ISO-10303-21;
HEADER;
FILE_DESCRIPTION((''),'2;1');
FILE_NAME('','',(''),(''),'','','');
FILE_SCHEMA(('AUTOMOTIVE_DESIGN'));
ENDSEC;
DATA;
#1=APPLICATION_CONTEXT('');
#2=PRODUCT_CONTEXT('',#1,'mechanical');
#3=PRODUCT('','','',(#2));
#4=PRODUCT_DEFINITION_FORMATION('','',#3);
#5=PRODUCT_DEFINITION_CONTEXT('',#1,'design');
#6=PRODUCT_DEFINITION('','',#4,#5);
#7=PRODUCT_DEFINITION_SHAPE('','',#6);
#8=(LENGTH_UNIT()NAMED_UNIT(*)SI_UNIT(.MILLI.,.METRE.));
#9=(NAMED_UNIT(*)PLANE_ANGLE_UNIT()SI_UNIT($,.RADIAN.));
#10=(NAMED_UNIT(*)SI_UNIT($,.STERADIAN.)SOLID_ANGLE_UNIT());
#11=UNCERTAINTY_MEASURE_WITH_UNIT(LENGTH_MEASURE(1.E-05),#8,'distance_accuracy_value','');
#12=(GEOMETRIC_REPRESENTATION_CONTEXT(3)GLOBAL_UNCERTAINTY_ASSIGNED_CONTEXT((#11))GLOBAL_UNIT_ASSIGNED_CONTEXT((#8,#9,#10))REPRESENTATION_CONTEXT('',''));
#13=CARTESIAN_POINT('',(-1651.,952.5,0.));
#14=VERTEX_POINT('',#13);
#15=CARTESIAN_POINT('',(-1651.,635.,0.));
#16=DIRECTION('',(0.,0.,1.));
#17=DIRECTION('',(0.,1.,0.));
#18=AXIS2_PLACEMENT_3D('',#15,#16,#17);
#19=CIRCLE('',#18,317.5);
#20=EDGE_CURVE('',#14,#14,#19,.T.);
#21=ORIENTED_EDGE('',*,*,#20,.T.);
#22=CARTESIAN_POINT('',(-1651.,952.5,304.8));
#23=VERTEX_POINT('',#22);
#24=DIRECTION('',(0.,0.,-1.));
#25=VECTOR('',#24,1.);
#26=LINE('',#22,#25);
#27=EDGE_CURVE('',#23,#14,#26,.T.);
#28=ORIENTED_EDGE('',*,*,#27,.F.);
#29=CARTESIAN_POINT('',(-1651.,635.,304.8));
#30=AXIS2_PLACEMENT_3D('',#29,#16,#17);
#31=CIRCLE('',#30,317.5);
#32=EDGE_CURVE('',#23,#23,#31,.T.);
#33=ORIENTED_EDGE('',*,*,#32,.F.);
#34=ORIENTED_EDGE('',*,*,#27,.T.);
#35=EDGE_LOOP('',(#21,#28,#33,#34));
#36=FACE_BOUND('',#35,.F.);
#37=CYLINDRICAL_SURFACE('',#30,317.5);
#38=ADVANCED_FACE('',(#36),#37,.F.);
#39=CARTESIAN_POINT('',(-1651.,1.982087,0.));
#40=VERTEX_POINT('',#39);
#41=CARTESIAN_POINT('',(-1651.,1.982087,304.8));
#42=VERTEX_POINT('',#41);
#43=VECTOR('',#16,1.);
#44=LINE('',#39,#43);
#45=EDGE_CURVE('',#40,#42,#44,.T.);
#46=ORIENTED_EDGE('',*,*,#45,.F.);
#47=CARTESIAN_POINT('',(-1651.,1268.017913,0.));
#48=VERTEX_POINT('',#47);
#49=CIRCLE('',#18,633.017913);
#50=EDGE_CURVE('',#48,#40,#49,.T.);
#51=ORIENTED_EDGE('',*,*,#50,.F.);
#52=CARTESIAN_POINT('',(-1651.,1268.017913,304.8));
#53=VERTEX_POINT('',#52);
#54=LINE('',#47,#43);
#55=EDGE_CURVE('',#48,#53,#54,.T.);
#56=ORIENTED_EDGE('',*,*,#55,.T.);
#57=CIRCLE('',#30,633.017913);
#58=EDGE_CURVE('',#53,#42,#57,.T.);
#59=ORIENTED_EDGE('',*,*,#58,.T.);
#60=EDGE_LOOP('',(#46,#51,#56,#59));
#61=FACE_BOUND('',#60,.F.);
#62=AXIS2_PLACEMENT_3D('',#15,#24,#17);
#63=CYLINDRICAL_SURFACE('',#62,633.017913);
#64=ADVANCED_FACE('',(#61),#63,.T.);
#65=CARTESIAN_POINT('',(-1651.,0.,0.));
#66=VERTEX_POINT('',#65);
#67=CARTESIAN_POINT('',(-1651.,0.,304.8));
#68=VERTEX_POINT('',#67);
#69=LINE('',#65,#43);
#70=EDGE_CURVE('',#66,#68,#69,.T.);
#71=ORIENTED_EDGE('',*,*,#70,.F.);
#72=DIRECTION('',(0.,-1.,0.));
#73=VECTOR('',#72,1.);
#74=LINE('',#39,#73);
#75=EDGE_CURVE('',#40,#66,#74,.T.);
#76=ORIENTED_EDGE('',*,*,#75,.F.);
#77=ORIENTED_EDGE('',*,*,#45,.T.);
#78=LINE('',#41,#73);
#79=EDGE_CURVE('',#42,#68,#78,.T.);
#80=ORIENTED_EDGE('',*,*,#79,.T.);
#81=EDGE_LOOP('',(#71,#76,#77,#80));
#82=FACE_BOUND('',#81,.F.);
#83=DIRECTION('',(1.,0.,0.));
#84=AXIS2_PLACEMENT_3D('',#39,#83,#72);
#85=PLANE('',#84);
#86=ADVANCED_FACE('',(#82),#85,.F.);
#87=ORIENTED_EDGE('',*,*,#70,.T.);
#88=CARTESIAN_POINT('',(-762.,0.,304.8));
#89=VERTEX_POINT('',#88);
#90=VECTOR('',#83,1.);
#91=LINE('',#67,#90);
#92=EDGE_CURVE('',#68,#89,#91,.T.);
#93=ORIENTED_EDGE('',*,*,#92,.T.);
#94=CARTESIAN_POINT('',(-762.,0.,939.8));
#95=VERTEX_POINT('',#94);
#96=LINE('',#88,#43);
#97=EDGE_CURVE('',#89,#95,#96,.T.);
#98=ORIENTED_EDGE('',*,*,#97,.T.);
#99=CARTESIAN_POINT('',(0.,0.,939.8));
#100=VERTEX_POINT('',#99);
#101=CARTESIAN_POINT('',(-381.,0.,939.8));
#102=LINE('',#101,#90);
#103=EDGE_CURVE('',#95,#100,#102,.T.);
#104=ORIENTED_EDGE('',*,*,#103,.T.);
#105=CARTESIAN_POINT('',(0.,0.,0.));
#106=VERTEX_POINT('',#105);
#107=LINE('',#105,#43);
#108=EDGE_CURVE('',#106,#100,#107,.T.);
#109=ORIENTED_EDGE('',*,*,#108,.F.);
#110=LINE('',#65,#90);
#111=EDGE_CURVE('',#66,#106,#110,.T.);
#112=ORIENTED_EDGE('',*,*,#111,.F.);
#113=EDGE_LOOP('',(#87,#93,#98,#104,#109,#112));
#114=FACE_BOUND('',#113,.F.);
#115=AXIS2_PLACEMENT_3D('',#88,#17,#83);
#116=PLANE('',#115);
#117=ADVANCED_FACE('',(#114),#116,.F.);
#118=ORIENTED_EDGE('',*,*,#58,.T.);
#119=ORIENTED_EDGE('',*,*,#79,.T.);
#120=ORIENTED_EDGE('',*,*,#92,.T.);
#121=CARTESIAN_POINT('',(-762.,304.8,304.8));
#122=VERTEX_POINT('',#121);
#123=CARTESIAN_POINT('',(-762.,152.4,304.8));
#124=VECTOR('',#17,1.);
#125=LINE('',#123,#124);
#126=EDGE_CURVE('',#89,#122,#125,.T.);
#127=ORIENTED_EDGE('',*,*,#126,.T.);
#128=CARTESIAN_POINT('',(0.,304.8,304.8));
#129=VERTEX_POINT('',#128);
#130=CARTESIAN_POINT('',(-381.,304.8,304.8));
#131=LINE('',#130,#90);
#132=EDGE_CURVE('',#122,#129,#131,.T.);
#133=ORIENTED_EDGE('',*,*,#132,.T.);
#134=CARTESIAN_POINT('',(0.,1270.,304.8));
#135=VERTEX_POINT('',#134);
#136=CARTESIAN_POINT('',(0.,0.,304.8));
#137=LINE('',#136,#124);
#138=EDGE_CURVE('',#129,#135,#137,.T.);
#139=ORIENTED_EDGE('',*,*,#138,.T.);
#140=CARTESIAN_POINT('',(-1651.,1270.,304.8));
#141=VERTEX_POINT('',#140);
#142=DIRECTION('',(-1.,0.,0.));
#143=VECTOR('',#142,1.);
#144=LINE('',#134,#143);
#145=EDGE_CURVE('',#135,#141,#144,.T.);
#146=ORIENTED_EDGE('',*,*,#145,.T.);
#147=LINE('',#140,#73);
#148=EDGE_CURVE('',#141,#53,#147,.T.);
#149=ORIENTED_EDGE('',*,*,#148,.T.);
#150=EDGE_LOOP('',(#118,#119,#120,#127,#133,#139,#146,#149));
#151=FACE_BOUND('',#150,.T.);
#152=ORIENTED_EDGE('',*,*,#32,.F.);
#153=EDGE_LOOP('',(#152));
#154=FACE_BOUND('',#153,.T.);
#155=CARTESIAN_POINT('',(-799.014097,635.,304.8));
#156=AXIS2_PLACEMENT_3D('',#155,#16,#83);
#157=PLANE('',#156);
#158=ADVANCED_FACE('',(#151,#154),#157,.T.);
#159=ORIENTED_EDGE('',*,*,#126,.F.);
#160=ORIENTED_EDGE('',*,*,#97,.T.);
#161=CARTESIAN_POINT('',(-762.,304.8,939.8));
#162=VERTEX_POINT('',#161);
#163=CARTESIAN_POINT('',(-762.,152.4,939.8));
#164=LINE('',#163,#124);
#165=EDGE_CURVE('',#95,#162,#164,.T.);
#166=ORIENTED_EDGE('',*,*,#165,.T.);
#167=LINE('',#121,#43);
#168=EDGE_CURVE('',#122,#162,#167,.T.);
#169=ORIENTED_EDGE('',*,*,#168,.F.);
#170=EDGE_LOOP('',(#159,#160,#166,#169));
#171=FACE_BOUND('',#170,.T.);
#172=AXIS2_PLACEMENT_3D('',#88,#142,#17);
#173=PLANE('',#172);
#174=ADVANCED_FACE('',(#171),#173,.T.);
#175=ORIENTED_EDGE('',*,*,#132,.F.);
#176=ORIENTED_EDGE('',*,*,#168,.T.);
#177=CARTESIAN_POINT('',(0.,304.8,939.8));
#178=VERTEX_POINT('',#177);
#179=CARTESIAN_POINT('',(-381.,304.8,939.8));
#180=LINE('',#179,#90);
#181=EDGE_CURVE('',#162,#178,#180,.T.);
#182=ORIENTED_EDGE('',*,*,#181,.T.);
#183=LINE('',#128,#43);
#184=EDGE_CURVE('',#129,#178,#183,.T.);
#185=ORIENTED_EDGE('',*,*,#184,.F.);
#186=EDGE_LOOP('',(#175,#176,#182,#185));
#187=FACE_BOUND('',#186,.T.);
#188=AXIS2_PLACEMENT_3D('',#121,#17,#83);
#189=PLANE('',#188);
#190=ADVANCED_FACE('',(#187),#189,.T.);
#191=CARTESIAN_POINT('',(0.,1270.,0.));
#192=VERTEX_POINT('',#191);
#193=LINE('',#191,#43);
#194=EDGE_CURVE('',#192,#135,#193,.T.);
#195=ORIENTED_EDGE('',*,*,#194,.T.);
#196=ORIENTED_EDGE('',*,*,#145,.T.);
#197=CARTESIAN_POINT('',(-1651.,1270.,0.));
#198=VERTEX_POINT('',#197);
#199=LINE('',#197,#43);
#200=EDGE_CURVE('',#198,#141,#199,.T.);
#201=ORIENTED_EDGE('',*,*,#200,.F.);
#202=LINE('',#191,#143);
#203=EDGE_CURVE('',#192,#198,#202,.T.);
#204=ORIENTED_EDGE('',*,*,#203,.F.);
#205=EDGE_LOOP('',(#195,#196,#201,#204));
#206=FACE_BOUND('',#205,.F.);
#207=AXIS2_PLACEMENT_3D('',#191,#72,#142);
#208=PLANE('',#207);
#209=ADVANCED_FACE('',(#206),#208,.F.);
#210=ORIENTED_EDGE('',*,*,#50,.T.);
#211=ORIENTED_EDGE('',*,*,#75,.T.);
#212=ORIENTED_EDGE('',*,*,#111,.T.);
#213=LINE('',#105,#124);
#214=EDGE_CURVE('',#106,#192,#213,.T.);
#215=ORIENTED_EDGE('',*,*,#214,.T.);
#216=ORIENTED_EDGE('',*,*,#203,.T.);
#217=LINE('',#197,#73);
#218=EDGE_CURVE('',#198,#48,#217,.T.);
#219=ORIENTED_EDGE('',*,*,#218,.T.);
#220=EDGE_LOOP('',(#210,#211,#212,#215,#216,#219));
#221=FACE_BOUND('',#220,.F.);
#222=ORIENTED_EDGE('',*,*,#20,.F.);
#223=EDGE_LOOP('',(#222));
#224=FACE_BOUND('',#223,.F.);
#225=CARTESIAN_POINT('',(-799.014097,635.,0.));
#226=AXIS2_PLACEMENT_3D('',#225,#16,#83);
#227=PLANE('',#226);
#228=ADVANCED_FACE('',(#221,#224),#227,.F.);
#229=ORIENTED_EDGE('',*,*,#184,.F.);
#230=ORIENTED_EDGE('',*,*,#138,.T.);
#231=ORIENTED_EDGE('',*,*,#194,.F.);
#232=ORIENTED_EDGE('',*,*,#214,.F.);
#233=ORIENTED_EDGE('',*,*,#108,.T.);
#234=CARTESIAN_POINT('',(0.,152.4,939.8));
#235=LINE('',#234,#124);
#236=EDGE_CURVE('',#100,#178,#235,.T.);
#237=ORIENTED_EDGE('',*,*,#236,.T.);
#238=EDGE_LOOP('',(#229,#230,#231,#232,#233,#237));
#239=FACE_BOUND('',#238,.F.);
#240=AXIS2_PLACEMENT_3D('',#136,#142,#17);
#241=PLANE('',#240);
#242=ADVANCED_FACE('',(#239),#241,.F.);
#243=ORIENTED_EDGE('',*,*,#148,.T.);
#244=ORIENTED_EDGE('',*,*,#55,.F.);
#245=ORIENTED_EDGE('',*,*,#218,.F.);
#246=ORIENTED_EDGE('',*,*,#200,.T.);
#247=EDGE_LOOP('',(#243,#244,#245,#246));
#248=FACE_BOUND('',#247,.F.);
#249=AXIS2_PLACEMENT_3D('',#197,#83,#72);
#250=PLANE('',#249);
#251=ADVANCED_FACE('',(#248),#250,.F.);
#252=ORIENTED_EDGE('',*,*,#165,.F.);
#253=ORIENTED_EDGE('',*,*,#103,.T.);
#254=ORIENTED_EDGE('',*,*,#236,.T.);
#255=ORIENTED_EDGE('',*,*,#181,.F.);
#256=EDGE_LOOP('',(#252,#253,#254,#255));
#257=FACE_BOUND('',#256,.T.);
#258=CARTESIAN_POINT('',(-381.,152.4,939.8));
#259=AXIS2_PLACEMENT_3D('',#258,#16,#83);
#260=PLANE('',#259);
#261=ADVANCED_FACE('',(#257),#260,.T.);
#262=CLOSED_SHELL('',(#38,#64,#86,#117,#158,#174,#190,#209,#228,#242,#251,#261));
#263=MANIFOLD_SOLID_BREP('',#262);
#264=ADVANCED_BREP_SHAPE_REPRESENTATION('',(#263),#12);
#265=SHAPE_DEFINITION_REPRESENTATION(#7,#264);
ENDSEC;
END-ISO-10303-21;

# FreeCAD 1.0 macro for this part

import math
import FreeCAD as App
import Part
import Sketcher
from FreeCAD import Vector
Q = App.Units.Quantity

doc = App.newDocument("Part")
params = doc.addObject("Spreadsheet::Sheet", "Params")
for row, (alias, value) in enumerate([
    ("sketch1_width", "65 in"),
    ("sketch1_height", "50 in"),
    ("pad1_length", "12 in"),
    ("sketch2_diameter", "25 in"),
    ("pocket1_length", "100 in"),
    ("sketch3_width", "30 in"),
    ("sketch3_height", "12 in"),
    ("pad2_length", "25 in"),
], start=1):
    params.set(f"A{row}", alias)
    params.set(f"B{row}", "=" + value)
    params.setAlias(f"B{row}", alias)

body = doc.addObject("PartDesign::Body", "Body")

sketch1 = body.newObject("Sketcher::SketchObject", "Sketch")
sketch1.AttachmentSupport = (doc.getObject("XY_Plane"), [""])
sketch1.MapMode = "FlatFace"
sketch1.addGeometry([
    Part.LineSegment(Vector(-1651, 0, 0), Vector(0, 0, 0)),
    Part.LineSegment(Vector(0, 0, 0), Vector(0, 1270, 0)),
    Part.LineSegment(Vector(0, 1270, 0), Vector(-1651, 1270, 0)),
    Part.LineSegment(Vector(-1651, 1270, 0), Vector(-1651, 1268, 0)),
    Part.ArcOfCircle(Part.Circle(Vector(-1651, 635, 0), Vector(0, 0, 1), 633), math.radians(90), math.radians(270)),
    Part.LineSegment(Vector(-1651, 2, 0), Vector(-1651, 0, 0)),
], False)
sketch1.addConstraint([
    Sketcher.Constraint("Coincident", 0, 2, 1, 1),
    Sketcher.Constraint("Coincident", 1, 2, 2, 1),
    Sketcher.Constraint("Coincident", 2, 2, 3, 1),
    Sketcher.Constraint("Coincident", 3, 2, 4, 1),
    Sketcher.Constraint("Coincident", 4, 2, 5, 1),
    Sketcher.Constraint("Coincident", 5, 2, 0, 1),
    Sketcher.Constraint("Horizontal", 0),
    Sketcher.Constraint("Vertical", 1),
    Sketcher.Constraint("Horizontal", 2),
    Sketcher.Constraint("Vertical", 3),
    Sketcher.Constraint("Vertical", 5),
    Sketcher.Constraint("Coincident", 0, 2, -1, 1),
    Sketcher.Constraint("Vertical", 4, 3, 2, 2),
    Sketcher.Constraint("Equal", 0, 2),
    Sketcher.Constraint("Equal", 3, 5),
    Sketcher.Constraint("DistanceX", 0, 1, 0, 2, Q("65 in")),
    Sketcher.Constraint("DistanceY", 1, 1, 1, 2, Q("50 in")),
    Sketcher.Constraint("Radius", 4, Q("633.017913 mm")),
])
sketch1.setExpression("Constraints[15]", "Params.sketch1_width")
sketch1.setExpression("Constraints[16]", "Params.sketch1_height")
pad1 = body.newObject("PartDesign::Pad", "Pad")
pad1.Profile = sketch1
pad1.setExpression("Length", "Params.pad1_length")

sketch2 = body.newObject("Sketcher::SketchObject", "Sketch001")
sketch2.AttachmentSupport = (doc.getObject("XY_Plane"), [""])
sketch2.MapMode = "FlatFace"
sketch2.AttachmentOffset = App.Placement(Vector(0, 0, 12 * 25.4), App.Rotation())
sketch2.addGeometry(Part.Circle(Vector(-1651, 635, 0), Vector(0, 0, 1), 318), False)
sketch2.addConstraint([
    Sketcher.Constraint("Diameter", 0, Q("25 in")),
    Sketcher.Constraint("DistanceX", 0, 3, -1, 1, Q("65 in")),
    Sketcher.Constraint("DistanceY", -1, 1, 0, 3, Q("25 in")),
])
sketch2.setExpression("Constraints[0]", "Params.sketch2_diameter")
pocket1 = body.newObject("PartDesign::Pocket", "Pocket")
pocket1.Profile = sketch2
pocket1.setExpression("Length", "Params.pocket1_length")

sketch3 = body.newObject("Sketcher::SketchObject", "Sketch002")
sketch3.AttachmentSupport = (doc.getObject("XY_Plane"), [""])
sketch3.MapMode = "FlatFace"
sketch3.AttachmentOffset = App.Placement(Vector(0, 0, 12 * 25.4), App.Rotation())
sketch3.addGeometry([
    Part.LineSegment(Vector(-762, 305, 0), Vector(-762, 0, 0)),
    Part.LineSegment(Vector(-762, 0, 0), Vector(0, 0, 0)),
    Part.LineSegment(Vector(0, 0, 0), Vector(0, 305, 0)),
    Part.LineSegment(Vector(0, 305, 0), Vector(-762, 305, 0)),
], False)
sketch3.addConstraint([
    Sketcher.Constraint("Coincident", 0, 2, 1, 1),
    Sketcher.Constraint("Coincident", 1, 2, 2, 1),
    Sketcher.Constraint("Coincident", 2, 2, 3, 1),
    Sketcher.Constraint("Coincident", 3, 2, 0, 1),
    Sketcher.Constraint("Vertical", 0),
    Sketcher.Constraint("Horizontal", 1),
    Sketcher.Constraint("Vertical", 2),
    Sketcher.Constraint("Horizontal", 3),
    Sketcher.Constraint("Coincident", 1, 2, -1, 1),
    Sketcher.Constraint("DistanceX", 1, 1, 1, 2, Q("30 in")),
    Sketcher.Constraint("DistanceY", 0, 2, 0, 1, Q("12 in")),
])
sketch3.setExpression("Constraints[9]", "Params.sketch3_width")
sketch3.setExpression("Constraints[10]", "Params.sketch3_height")
pad2 = body.newObject("PartDesign::Pad", "Pad001")
pad2.Profile = sketch3
pad2.setExpression("Length", "Params.pad2_length")

doc.recompute()
